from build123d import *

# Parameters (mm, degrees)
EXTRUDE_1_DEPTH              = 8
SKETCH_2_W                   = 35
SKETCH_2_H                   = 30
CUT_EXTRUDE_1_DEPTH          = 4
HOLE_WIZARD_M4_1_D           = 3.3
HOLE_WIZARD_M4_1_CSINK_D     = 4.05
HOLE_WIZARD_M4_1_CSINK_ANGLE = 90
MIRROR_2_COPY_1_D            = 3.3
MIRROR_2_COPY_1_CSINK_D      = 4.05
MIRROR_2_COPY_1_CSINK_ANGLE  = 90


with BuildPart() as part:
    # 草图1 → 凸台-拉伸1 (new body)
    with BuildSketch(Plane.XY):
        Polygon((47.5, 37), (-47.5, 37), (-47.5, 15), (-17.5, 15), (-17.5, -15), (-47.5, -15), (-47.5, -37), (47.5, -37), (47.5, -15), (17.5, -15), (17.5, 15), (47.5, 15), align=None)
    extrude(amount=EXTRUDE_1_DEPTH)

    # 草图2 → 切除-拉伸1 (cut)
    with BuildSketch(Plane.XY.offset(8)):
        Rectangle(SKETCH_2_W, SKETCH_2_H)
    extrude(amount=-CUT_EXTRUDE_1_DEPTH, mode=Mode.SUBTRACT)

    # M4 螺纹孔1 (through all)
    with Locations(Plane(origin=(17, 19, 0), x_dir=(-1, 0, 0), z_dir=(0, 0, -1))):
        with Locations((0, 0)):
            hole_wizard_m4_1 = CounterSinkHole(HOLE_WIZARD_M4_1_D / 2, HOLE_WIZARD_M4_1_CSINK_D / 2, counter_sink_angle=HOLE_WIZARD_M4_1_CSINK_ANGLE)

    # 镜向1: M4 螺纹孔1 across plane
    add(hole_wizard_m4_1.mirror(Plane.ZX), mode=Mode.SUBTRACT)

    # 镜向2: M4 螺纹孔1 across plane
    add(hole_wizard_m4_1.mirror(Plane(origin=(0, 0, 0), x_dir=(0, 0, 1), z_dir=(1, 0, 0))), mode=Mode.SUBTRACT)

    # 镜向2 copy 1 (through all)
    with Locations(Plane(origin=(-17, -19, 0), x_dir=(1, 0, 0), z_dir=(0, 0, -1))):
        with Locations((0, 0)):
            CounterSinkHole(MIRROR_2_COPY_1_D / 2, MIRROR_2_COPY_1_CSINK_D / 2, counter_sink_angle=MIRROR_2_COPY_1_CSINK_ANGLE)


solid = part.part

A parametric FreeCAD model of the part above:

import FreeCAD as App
import Part
import Sketcher
from FreeCAD import Vector
Q = App.Units.Quantity

doc = App.newDocument("Part")
body = doc.addObject("PartDesign::Body", "Body")

# Sketch on XY plane
sketch1 = doc.addObject("Sketcher::SketchObject", "Sketch")
body.addObject(sketch1)
sketch1.AttachmentSupport = (doc.XY_Plane, [""])
sketch1.MapMode = "FlatFace"
sketch1.addGeometry([
    Part.LineSegment(Vector(47.5, 37, 0), Vector(-47.5, 37, 0)),  # 0
    Part.LineSegment(Vector(-47.5, 37, 0), Vector(-47.5, 15, 0)),  # 1
    Part.LineSegment(Vector(-47.5, 15, 0), Vector(-17.5, 15, 0)),  # 2
    Part.LineSegment(Vector(-17.5, 15, 0), Vector(-17.5, -15, 0)),  # 3
    Part.LineSegment(Vector(-17.5, -15, 0), Vector(-47.5, -15, 0)),  # 4
    Part.LineSegment(Vector(-47.5, -15, 0), Vector(-47.5, -37, 0)),  # 5
    Part.LineSegment(Vector(-47.5, -37, 0), Vector(47.5, -37, 0)),  # 6
    Part.LineSegment(Vector(47.5, -37, 0), Vector(47.5, -15, 0)),  # 7
    Part.LineSegment(Vector(47.5, -15, 0), Vector(17.5, -15, 0)),  # 8
    Part.LineSegment(Vector(17.5, -15, 0), Vector(17.5, 15, 0)),  # 9
    Part.LineSegment(Vector(17.5, 15, 0), Vector(47.5, 15, 0)),  # 10
    Part.LineSegment(Vector(47.5, 15, 0), Vector(47.5, 37, 0)),  # 11
], False)
sketch1.addConstraint([
    Sketcher.Constraint("Coincident", 0, 2, 1, 1),
    Sketcher.Constraint("Coincident", 1, 2, 2, 1),
    Sketcher.Constraint("Coincident", 2, 2, 3, 1),
    Sketcher.Constraint("Coincident", 3, 2, 4, 1),
    Sketcher.Constraint("Coincident", 4, 2, 5, 1),
    Sketcher.Constraint("Coincident", 5, 2, 6, 1),
    Sketcher.Constraint("Coincident", 6, 2, 7, 1),
    Sketcher.Constraint("Coincident", 7, 2, 8, 1),
    Sketcher.Constraint("Coincident", 8, 2, 9, 1),
    Sketcher.Constraint("Coincident", 9, 2, 10, 1),
    Sketcher.Constraint("Coincident", 10, 2, 11, 1),
    Sketcher.Constraint("Coincident", 11, 2, 0, 1),
    Sketcher.Constraint("Horizontal", 0),
    Sketcher.Constraint("Vertical", 1),
    Sketcher.Constraint("Horizontal", 2),
    Sketcher.Constraint("Vertical", 3),
    Sketcher.Constraint("Horizontal", 4),
    Sketcher.Constraint("Vertical", 5),
    Sketcher.Constraint("Horizontal", 6),
    Sketcher.Constraint("Vertical", 7),
    Sketcher.Constraint("Horizontal", 8),
    Sketcher.Constraint("Vertical", 9),
    Sketcher.Constraint("Horizontal", 10),
    Sketcher.Constraint("Vertical", 11),
    Sketcher.Constraint("Symmetric", 0, 2, 6, 2, -1, 1),
    Sketcher.Constraint("Symmetric", 2, 2, 8, 2, -1, 1),
    Sketcher.Constraint("Symmetric", 4, 2, 10, 2, -1, 1),
    Sketcher.Constraint("Symmetric", 4, 2, 7, 2, -2),
    Sketcher.Constraint("Equal", 10, 3),
    Sketcher.Constraint("DistanceX", 0, 2, 0, 1, Q("95 mm")),
    Sketcher.Constraint("DistanceX", 2, 1, 2, 2, Q("30 mm")),
    Sketcher.Constraint("DistanceY", 1, 2, 1, 1, Q("22 mm")),
])
pad1 = doc.addObject("PartDesign::Pad", "Pad")
body.addObject(pad1)
pad1.Profile = sketch1
pad1.Length = 8

# Sketch on XY plane
sketch2 = doc.addObject("Sketcher::SketchObject", "Sketch001")
body.addObject(sketch2)
sketch2.AttachmentSupport = (doc.XY_Plane, [""])
sketch2.MapMode = "FlatFace"
sketch2.AttachmentOffset = App.Placement(Vector(0, 0, 8), App.Rotation())
sketch2.addGeometry([
    Part.LineSegment(Vector(-17.5, 15, 0), Vector(-17.5, -15, 0)),
    Part.LineSegment(Vector(-17.5, -15, 0), Vector(17.5, -15, 0)),
    Part.LineSegment(Vector(17.5, -15, 0), Vector(17.5, 15, 0)),
    Part.LineSegment(Vector(17.5, 15, 0), Vector(-17.5, 15, 0)),
], False)
sketch2.addConstraint([
    Sketcher.Constraint("Coincident", 0, 2, 1, 1),
    Sketcher.Constraint("Coincident", 1, 2, 2, 1),
    Sketcher.Constraint("Coincident", 2, 2, 3, 1),
    Sketcher.Constraint("Coincident", 3, 2, 0, 1),
    Sketcher.Constraint("Vertical", 0),
    Sketcher.Constraint("Horizontal", 1),
    Sketcher.Constraint("Vertical", 2),
    Sketcher.Constraint("Horizontal", 3),
    Sketcher.Constraint("Symmetric", 0, 2, 2, 2, -1, 1),
    Sketcher.Constraint("DistanceX", 1, 1, 1, 2, Q("35 mm")),
    Sketcher.Constraint("DistanceY", 0, 2, 0, 1, Q("30 mm")),
])
pocket1 = doc.addObject("PartDesign::Pocket", "Pocket")
body.addObject(pocket1)
pocket1.Profile = sketch2
pocket1.Length = 4

# Sketch on XY plane
sketch3 = doc.addObject("Sketcher::SketchObject", "Sketch002")
body.addObject(sketch3)
sketch3.AttachmentSupport = (doc.XY_Plane, [""])
sketch3.MapMode = "FlatFace"
sketch3.addGeometry(Part.Circle(Vector(17, 19, 0), Vector(0, 0, 1), 1.65), False)
sketch3.addConstraint([
    Sketcher.Constraint("Diameter", 0, Q("3.3 mm")),
    Sketcher.Constraint("DistanceX", -1, 1, 0, 3, Q("17 mm")),
    Sketcher.Constraint("DistanceY", -1, 1, 0, 3, Q("19 mm")),
])
doc.recompute()
hole = doc.addObject("PartDesign::Hole", "Hole")
body.addObject(hole)
hole.Profile = sketch3
hole.ThreadType = "None"
hole.Diameter = 3.3
hole.DepthType = "ThroughAll"
hole.HoleCutType = "Countersink"
hole.HoleCutDiameter = 4.05
hole.HoleCutCountersinkAngle = 90
hole.Reversed = True
doc.recompute()

mirrored = doc.addObject("PartDesign::Mirrored", "Mirrored")
body.addObject(mirrored)
mirrored.Originals = [hole]
mirrored.MirrorPlane = (doc.XZ_Plane, [""])
body.Tip = mirrored
doc.recompute()

mirrored2 = doc.addObject("PartDesign::Mirrored", "Mirrored001")
body.addObject(mirrored2)
mirrored2.Originals = [hole]
mirrored2.MirrorPlane = (doc.YZ_Plane, [""])
body.Tip = mirrored2

# Sketch on XY plane
sketch4 = doc.addObject("Sketcher::SketchObject", "Sketch003")
body.addObject(sketch4)
sketch4.AttachmentSupport = (doc.XY_Plane, [""])
sketch4.MapMode = "FlatFace"
sketch4.addGeometry(Part.Circle(Vector(-17, -19, 0), Vector(0, 0, 1), 1.65), False)
sketch4.addConstraint([
    Sketcher.Constraint("Diameter", 0, Q("3.3 mm")),
    Sketcher.Constraint("DistanceX", 0, 3, -1, 1, Q("17 mm")),
    Sketcher.Constraint("DistanceY", 0, 3, -1, 1, Q("19 mm")),
])
doc.recompute()
hole2 = doc.addObject("PartDesign::Hole", "Hole001")
body.addObject(hole2)
hole2.Profile = sketch4
hole2.ThreadType = "None"
hole2.Diameter = 3.3
hole2.DepthType = "ThroughAll"
hole2.HoleCutType = "Countersink"
hole2.HoleCutDiameter = 4.05
hole2.HoleCutCountersinkAngle = 90
hole2.Reversed = True

doc.recompute()
